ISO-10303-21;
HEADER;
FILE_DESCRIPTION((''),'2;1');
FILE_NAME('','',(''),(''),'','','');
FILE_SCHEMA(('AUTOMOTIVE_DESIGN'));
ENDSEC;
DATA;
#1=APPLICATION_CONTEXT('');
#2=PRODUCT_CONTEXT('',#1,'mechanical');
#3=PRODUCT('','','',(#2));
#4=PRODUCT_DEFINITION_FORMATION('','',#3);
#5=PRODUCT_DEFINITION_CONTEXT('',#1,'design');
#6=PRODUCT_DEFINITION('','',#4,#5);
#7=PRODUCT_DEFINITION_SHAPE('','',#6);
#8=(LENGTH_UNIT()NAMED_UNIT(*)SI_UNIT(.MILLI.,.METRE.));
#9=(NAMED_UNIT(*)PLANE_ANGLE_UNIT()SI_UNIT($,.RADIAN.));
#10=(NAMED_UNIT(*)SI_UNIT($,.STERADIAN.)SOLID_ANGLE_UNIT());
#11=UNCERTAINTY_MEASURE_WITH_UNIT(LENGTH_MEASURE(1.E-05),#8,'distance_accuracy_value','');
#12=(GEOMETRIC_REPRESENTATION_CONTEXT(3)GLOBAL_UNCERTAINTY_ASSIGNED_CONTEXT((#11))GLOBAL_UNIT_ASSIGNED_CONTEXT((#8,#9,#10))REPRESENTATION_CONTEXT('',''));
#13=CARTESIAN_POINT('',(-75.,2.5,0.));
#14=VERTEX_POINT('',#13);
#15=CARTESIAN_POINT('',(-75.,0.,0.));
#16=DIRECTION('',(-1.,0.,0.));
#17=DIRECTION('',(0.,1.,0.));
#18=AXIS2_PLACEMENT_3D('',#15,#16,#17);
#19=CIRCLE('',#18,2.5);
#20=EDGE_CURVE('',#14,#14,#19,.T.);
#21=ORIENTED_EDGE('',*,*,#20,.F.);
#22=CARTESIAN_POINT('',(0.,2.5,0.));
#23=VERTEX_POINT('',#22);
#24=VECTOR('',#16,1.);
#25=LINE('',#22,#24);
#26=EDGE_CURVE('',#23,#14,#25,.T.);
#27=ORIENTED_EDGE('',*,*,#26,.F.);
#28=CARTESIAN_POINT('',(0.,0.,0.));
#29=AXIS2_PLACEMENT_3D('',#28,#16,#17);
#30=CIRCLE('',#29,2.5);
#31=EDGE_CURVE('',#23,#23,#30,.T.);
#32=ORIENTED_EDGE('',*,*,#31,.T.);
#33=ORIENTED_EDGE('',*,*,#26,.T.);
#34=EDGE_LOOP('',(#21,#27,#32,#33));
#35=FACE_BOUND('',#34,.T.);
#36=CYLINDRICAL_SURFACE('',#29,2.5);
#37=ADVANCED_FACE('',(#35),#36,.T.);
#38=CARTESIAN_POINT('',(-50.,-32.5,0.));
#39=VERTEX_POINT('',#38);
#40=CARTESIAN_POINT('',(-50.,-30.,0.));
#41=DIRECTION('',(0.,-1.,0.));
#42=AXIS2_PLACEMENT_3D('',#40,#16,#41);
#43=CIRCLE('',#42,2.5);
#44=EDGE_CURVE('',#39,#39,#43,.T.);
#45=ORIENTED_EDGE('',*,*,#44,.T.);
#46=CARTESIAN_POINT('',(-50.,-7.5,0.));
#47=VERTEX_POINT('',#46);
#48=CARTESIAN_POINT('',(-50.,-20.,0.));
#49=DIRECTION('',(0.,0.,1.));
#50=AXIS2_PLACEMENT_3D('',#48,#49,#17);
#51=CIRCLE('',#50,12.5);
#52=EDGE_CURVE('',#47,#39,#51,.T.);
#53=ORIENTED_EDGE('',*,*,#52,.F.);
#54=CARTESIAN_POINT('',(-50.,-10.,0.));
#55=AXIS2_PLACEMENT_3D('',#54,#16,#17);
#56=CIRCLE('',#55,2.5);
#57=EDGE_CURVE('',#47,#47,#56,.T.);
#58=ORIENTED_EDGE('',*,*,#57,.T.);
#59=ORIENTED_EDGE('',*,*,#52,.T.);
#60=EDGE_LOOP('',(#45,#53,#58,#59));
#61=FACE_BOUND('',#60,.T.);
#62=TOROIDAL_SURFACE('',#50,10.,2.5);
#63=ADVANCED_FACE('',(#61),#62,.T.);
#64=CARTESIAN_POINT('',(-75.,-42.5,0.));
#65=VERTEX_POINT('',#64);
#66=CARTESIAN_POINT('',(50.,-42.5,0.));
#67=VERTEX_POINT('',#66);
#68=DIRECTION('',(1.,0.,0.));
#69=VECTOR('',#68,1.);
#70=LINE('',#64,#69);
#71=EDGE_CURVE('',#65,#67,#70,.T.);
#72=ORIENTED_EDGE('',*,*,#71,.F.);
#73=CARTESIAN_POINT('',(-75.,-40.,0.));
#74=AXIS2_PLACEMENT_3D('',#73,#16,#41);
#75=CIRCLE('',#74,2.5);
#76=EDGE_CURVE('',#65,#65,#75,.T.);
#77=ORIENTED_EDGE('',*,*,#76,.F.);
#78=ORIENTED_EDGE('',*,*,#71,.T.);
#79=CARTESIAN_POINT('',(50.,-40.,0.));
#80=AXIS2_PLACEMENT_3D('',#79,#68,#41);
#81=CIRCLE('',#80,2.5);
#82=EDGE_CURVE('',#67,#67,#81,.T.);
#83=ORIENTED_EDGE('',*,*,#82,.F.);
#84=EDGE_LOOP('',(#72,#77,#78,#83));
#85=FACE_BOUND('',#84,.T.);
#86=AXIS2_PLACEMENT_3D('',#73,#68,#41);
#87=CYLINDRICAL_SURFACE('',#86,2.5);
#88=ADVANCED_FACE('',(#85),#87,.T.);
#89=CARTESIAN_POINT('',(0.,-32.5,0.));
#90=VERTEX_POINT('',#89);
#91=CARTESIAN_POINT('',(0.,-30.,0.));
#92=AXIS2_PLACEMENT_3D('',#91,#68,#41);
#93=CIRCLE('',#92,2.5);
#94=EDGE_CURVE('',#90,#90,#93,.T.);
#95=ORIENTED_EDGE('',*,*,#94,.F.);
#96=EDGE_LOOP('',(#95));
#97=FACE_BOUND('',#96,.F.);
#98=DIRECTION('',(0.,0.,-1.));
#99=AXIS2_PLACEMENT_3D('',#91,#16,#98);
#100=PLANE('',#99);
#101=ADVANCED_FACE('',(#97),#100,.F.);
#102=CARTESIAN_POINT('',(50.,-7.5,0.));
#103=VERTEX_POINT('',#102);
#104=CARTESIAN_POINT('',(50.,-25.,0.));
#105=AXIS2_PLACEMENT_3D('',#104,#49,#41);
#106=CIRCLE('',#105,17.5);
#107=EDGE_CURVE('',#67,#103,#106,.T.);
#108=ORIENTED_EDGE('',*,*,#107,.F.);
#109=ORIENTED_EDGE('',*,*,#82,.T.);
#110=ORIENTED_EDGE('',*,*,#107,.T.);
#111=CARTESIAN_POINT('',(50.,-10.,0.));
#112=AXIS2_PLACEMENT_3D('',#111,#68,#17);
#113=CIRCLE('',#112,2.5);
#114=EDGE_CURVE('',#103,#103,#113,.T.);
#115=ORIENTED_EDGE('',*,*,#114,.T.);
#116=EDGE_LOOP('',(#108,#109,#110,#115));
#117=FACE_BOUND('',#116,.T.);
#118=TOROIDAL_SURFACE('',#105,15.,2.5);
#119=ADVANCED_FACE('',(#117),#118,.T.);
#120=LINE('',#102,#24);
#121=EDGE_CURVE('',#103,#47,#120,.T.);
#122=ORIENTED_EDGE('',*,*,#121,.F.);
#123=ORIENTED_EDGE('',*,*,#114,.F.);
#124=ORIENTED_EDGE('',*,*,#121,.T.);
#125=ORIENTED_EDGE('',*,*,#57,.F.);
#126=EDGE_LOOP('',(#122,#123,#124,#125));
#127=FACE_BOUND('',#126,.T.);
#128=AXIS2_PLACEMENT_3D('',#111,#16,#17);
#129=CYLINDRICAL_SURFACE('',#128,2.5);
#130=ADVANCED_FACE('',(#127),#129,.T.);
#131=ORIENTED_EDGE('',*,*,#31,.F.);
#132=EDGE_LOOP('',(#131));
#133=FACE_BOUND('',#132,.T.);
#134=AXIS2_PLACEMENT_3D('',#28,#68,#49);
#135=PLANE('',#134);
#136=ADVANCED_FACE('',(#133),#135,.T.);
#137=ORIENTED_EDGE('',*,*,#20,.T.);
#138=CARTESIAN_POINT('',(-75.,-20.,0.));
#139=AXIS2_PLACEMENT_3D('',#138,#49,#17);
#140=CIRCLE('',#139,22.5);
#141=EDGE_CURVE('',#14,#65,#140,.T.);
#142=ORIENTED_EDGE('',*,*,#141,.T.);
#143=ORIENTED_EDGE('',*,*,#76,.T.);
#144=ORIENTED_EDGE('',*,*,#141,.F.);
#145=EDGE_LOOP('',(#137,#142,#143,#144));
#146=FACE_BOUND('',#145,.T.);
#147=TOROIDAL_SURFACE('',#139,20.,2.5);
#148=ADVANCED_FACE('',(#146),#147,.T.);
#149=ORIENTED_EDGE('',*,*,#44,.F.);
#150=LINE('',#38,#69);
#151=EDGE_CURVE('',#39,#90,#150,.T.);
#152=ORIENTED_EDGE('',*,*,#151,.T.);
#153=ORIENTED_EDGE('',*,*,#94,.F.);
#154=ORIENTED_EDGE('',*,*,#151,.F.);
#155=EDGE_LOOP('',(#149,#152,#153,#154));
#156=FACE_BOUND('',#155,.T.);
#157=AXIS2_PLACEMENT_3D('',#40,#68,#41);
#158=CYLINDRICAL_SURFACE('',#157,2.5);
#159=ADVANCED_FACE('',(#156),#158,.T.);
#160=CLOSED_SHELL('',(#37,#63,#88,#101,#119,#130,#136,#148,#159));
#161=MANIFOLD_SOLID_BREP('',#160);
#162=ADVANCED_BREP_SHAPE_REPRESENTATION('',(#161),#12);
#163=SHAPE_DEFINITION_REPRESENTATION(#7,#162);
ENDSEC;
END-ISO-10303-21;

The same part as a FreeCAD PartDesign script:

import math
import FreeCAD as App
import Part
import Sketcher
Q = App.Units.Quantity

doc = App.newDocument("Part")
body = doc.addObject("PartDesign::Body", "Body")

# Sketch on YZ plane
sketch1 = doc.addObject("Sketcher::SketchObject", "Sketch")
body.addObject(sketch1)
sketch1.AttachmentSupport = (doc.YZ_Plane, [""])
sketch1.MapMode = "FlatFace"
sketch1.addGeometry(Part.Circle(App.Vector(0, 0, 0), App.Vector(0, 0, 1), 2.5), False)
sketch1.addConstraint(Sketcher.Constraint("Coincident", 0, 3, -1, 1))
sketch1.addConstraint(Sketcher.Constraint("Diameter", 0, Q("5 mm")))

# Sketch on XY plane
sketch2 = doc.addObject("Sketcher::SketchObject", "Sketch001")
body.addObject(sketch2)
sketch2.AttachmentSupport = (doc.XY_Plane, [""])
sketch2.MapMode = "FlatFace"
sketch2.addGeometry(Part.LineSegment(App.Vector(0, 0, 0), App.Vector(-75, 0, 0)), False)
sketch2.addGeometry(Part.ArcOfCircle(Part.Circle(App.Vector(-75, -20, 0), App.Vector(0, 0, 1), 20), math.radians(90), math.radians(270)), False)
sketch2.addGeometry(Part.LineSegment(App.Vector(-75, -40, 0), App.Vector(50, -40, 0)), False)
sketch2.addGeometry(Part.ArcOfCircle(Part.Circle(App.Vector(50, -25, 0), App.Vector(0, 0, 1), 15), math.radians(-90), math.radians(90)), False)
sketch2.addGeometry(Part.LineSegment(App.Vector(50, -10, 0), App.Vector(-50, -10, 0)), False)
sketch2.addGeometry(Part.ArcOfCircle(Part.Circle(App.Vector(-50, -20, 0), App.Vector(0, 0, 1), 10), math.radians(90), math.radians(270)), False)
sketch2.addGeometry(Part.LineSegment(App.Vector(-50, -30, 0), App.Vector(0, -30, 0)), False)
sketch2.addConstraint(Sketcher.Constraint("Tangent", 0, 2, 1, 1))
sketch2.addConstraint(Sketcher.Constraint("Tangent", 1, 2, 2, 1))
sketch2.addConstraint(Sketcher.Constraint("Tangent", 2, 2, 3, 1))
sketch2.addConstraint(Sketcher.Constraint("Tangent", 3, 2, 4, 1))
sketch2.addConstraint(Sketcher.Constraint("Tangent", 4, 2, 5, 1))
sketch2.addConstraint(Sketcher.Constraint("Tangent", 5, 2, 6, 1))
sketch2.addConstraint(Sketcher.Constraint("Horizontal", 0))
sketch2.addConstraint(Sketcher.Constraint("Horizontal", 2))
sketch2.addConstraint(Sketcher.Constraint("Horizontal", 4))
sketch2.addConstraint(Sketcher.Constraint("Horizontal", 6))
sketch2.addConstraint(Sketcher.Constraint("Coincident", 0, 1, -1, 1))
sketch2.addConstraint(Sketcher.Constraint("PointOnObject", 6, 2, -2))
sketch2.addConstraint(Sketcher.Constraint("Horizontal", 1, 3, 5, 3))
sketch2.addConstraint(Sketcher.Constraint("Radius", 1, Q("20 mm")))
sketch2.addConstraint(Sketcher.Constraint("Radius", 3, Q("15 mm")))
sketch2.addConstraint(Sketcher.Constraint("DistanceX", 0, 2, 0, 1, Q("75 mm")))
sketch2.addConstraint(Sketcher.Constraint("DistanceX", 2, 1, 2, 2, Q("125 mm")))
sketch2.addConstraint(Sketcher.Constraint("DistanceX", 4, 2, 4, 1, Q("100 mm")))
doc.recompute()

additivepipe = doc.addObject("PartDesign::AdditivePipe", "AdditivePipe")
body.addObject(additivepipe)
additivepipe.Profile = sketch1
additivepipe.Spine = (sketch2, ["Edge1", "Edge2", "Edge3", "Edge4", "Edge5", "Edge6", "Edge7"])

doc.recompute()
